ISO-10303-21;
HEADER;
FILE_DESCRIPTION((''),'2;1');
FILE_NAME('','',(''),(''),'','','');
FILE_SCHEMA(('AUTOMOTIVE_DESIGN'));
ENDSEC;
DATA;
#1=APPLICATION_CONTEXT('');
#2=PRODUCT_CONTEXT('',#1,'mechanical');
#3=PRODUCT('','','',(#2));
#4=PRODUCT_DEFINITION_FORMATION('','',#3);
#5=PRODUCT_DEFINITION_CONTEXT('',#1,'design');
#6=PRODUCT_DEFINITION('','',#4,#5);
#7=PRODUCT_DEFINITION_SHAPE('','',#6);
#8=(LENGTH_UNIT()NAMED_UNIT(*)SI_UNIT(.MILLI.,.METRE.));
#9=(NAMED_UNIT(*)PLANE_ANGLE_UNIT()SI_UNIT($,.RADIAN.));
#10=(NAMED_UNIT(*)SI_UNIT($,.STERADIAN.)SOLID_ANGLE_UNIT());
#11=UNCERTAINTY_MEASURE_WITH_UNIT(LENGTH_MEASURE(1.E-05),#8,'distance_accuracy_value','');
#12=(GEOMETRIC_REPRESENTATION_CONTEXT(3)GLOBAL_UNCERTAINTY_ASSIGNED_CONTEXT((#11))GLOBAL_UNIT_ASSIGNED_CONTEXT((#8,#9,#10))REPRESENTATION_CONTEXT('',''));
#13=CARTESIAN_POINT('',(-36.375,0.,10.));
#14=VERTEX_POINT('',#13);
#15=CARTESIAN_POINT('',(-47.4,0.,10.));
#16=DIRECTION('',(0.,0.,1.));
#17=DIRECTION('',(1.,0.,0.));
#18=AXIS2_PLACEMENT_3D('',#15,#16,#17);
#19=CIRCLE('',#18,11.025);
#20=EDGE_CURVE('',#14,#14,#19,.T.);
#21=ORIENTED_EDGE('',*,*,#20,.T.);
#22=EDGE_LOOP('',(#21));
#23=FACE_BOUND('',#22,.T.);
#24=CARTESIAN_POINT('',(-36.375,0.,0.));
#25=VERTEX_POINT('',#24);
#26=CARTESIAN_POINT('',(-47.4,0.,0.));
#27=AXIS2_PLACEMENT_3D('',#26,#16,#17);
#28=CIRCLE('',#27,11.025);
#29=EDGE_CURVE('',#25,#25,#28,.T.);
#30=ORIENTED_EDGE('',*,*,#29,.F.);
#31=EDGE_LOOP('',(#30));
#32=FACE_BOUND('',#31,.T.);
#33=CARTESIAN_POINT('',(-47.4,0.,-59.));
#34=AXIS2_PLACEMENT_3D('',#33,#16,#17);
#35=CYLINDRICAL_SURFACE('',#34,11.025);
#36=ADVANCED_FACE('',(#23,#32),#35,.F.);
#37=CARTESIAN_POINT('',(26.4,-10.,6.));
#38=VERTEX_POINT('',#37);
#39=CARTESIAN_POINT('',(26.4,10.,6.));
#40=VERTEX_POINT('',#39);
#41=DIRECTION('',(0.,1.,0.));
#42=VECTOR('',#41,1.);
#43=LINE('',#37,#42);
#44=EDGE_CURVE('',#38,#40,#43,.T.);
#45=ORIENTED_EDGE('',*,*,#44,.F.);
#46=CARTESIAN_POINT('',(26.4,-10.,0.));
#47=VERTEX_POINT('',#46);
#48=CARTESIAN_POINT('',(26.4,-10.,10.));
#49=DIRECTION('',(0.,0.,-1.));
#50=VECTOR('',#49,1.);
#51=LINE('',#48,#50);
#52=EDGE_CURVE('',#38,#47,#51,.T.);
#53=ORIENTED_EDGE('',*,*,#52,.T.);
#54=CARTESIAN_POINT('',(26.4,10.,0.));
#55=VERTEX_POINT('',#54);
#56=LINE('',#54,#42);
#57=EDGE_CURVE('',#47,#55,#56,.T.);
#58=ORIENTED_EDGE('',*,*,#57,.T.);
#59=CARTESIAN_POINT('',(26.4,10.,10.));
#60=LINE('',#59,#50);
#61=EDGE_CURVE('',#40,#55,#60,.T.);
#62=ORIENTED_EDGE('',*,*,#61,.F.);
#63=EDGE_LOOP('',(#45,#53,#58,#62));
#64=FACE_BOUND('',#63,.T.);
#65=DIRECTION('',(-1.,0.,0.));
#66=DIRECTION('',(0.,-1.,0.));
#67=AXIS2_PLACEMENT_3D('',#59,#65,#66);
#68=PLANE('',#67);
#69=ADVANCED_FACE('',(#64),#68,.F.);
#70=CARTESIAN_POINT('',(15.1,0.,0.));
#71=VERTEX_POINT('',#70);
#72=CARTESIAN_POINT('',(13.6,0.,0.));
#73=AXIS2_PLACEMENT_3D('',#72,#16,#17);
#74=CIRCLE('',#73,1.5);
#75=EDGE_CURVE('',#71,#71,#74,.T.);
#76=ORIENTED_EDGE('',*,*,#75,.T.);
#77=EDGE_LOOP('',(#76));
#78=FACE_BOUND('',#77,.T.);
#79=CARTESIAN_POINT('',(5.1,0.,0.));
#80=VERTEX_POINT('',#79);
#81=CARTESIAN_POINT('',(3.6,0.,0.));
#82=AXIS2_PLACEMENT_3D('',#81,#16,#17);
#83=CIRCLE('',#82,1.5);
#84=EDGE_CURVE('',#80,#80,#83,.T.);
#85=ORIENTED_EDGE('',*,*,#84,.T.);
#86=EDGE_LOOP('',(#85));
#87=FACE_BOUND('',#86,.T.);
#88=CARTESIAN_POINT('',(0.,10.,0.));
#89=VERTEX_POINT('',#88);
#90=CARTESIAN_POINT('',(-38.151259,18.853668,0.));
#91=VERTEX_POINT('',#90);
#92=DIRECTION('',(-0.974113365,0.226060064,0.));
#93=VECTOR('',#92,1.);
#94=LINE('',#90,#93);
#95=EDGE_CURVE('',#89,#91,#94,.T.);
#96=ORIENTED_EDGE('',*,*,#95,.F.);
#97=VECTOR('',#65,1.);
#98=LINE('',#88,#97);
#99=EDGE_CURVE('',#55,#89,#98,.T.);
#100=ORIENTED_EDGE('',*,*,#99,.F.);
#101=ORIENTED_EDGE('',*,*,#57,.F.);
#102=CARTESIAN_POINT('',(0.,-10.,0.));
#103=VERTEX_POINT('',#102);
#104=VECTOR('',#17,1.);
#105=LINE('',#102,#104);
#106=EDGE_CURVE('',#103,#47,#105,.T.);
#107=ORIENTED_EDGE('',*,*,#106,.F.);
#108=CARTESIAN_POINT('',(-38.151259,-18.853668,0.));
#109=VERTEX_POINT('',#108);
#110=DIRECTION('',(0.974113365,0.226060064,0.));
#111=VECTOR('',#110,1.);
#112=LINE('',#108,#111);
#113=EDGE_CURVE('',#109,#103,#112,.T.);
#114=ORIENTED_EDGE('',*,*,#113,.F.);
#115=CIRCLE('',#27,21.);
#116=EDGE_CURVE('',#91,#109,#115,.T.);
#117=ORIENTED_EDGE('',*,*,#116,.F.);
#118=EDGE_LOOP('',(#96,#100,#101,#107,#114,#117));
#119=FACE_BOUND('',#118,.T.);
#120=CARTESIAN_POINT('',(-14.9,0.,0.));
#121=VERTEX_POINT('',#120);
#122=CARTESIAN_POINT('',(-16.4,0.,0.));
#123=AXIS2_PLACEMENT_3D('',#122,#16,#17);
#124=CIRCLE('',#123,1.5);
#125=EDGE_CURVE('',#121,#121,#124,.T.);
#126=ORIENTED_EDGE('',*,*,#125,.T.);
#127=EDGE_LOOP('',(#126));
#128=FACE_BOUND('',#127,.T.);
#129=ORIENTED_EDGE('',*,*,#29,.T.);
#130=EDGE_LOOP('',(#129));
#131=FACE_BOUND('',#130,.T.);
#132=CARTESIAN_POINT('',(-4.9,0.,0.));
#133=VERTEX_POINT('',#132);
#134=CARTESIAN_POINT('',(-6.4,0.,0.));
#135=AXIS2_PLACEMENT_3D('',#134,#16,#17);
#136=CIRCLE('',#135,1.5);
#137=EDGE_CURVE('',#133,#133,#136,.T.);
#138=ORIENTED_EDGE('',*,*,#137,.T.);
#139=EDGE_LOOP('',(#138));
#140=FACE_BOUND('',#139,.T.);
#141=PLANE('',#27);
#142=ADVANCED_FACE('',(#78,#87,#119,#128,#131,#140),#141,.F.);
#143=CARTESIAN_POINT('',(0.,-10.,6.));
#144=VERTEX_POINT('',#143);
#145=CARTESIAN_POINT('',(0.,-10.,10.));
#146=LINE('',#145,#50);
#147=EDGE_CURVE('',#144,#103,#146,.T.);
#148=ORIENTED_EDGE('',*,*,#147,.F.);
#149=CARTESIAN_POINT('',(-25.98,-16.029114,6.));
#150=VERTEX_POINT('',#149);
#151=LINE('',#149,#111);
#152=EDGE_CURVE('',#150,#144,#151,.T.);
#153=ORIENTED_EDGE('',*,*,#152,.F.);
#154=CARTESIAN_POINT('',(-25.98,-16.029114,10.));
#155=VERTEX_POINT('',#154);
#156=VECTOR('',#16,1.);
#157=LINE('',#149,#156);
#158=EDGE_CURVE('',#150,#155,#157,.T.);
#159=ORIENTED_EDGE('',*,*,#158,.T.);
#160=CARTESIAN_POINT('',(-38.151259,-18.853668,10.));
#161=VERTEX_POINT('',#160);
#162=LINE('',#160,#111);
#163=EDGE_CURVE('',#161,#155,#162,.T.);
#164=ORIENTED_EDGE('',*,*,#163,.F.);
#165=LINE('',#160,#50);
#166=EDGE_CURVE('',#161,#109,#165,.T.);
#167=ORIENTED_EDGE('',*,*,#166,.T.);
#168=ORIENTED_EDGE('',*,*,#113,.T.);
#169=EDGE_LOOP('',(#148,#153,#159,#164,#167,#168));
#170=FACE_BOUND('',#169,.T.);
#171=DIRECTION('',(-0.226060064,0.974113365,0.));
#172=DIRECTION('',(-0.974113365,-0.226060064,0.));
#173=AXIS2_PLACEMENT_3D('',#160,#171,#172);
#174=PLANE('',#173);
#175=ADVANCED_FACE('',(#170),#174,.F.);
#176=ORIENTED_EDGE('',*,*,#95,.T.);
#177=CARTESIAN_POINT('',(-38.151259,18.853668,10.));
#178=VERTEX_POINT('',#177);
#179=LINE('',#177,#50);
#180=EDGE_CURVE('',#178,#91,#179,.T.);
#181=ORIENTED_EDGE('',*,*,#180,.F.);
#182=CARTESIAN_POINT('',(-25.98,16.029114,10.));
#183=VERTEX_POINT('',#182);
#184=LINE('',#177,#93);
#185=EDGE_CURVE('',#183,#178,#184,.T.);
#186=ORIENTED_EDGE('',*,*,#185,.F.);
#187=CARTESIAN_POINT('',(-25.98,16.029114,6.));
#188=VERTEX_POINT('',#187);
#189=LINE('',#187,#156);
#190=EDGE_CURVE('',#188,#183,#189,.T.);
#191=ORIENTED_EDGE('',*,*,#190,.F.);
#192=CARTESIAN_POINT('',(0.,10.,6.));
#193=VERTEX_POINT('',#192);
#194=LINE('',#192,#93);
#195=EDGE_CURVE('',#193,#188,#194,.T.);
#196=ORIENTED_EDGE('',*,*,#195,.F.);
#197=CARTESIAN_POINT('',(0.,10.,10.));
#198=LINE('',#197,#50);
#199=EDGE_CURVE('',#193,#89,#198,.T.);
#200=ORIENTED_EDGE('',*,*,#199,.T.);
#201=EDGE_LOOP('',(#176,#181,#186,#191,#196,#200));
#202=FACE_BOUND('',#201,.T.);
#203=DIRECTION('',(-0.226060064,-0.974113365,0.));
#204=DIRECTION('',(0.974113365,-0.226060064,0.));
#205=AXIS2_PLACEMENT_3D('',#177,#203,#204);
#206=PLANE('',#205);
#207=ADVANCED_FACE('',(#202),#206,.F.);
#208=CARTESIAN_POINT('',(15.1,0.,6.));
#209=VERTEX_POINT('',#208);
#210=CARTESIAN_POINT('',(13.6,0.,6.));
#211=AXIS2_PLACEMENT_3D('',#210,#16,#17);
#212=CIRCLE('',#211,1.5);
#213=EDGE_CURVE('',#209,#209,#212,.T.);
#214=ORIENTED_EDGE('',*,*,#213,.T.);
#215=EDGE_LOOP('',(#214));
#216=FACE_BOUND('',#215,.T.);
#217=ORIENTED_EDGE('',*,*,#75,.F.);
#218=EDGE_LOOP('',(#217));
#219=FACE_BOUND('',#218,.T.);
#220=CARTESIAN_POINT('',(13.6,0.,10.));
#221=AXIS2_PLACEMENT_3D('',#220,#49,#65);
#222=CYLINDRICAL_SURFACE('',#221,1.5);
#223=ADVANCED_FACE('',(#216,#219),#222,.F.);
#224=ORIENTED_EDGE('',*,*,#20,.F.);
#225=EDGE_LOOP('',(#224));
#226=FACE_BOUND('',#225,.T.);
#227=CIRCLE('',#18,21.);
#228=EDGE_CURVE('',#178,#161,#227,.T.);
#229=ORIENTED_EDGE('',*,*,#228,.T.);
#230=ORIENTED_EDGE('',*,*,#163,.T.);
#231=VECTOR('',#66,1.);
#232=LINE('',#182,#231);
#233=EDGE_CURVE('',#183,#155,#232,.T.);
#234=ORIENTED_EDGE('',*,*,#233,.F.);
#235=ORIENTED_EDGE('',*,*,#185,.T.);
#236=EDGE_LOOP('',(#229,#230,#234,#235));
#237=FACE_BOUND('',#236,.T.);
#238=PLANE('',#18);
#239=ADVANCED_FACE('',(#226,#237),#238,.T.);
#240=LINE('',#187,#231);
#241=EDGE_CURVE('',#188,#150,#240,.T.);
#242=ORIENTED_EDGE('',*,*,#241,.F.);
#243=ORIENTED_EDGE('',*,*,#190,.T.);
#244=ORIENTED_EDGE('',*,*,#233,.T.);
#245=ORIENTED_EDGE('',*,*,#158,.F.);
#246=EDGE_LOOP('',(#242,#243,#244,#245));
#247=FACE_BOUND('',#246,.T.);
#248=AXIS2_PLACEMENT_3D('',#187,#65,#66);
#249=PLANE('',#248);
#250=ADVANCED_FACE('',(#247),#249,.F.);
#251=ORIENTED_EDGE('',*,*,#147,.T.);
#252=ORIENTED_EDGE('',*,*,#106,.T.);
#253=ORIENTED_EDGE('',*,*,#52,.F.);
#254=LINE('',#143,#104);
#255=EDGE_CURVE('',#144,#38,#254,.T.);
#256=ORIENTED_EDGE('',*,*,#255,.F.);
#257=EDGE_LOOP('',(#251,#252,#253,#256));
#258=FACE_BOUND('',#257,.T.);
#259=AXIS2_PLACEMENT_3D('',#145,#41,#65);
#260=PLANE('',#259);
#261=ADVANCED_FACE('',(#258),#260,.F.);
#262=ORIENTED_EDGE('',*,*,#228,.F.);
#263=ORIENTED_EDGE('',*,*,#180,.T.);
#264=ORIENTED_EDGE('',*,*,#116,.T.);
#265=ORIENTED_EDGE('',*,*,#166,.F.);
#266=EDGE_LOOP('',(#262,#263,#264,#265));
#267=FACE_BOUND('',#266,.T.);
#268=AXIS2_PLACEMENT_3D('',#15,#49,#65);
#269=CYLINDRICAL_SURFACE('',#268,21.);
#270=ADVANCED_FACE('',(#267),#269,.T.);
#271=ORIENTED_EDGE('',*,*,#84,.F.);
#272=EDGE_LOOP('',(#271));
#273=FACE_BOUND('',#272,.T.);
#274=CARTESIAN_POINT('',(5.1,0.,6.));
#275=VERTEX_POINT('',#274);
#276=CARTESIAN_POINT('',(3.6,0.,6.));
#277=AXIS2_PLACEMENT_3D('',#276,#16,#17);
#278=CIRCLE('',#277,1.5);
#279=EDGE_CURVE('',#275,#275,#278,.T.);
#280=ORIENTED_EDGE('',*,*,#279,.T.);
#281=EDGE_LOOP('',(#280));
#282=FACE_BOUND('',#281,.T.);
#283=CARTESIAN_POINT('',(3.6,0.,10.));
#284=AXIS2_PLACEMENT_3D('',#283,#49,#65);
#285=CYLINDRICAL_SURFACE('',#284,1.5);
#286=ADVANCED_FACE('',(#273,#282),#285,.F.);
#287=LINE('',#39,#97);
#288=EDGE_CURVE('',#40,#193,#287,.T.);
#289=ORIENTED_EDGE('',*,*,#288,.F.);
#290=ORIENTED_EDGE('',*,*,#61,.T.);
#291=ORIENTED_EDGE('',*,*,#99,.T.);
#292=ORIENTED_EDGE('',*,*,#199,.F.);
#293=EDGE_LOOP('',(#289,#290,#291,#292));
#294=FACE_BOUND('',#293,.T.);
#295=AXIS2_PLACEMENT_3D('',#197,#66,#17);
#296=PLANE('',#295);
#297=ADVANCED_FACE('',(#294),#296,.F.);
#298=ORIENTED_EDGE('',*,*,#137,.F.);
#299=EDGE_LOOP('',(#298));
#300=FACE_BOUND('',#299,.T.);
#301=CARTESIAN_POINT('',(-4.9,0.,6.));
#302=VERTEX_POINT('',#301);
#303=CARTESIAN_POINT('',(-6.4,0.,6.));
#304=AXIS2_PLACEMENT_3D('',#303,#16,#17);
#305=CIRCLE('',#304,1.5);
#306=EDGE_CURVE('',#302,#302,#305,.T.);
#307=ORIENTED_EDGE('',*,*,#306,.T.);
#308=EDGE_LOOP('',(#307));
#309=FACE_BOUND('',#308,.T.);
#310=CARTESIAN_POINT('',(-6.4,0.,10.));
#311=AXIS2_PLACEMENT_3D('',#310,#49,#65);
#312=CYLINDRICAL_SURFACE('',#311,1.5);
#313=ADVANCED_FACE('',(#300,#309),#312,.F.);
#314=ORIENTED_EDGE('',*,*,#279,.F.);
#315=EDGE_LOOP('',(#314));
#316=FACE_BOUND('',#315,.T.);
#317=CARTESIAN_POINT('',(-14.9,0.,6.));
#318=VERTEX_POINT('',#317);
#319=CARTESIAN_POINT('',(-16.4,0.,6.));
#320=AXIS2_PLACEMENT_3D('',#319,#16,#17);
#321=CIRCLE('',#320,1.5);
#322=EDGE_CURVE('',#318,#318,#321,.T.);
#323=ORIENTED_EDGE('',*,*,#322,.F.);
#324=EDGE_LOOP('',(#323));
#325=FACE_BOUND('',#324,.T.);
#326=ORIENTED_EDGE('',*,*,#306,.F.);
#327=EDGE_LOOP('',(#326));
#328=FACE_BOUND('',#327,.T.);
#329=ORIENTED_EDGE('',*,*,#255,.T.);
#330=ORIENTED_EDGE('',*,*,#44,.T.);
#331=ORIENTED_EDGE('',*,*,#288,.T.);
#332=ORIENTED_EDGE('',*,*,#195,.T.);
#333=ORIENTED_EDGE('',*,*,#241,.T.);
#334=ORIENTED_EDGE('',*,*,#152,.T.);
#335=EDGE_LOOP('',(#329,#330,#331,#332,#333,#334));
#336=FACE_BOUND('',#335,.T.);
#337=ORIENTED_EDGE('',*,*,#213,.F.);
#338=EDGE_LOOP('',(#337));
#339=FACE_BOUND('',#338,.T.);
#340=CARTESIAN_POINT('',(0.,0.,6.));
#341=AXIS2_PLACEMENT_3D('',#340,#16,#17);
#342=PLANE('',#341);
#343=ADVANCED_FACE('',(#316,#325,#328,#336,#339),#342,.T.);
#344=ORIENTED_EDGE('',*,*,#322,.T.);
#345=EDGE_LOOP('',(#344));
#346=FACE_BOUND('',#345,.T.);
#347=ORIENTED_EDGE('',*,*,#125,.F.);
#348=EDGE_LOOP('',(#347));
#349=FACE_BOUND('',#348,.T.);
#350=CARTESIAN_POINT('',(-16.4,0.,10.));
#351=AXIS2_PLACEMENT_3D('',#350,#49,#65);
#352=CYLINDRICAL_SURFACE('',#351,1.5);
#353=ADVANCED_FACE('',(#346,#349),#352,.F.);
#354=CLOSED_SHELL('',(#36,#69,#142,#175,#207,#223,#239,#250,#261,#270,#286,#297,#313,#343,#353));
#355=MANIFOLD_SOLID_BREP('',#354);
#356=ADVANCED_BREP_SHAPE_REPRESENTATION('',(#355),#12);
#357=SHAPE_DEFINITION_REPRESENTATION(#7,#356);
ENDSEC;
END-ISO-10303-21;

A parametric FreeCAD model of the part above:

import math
import FreeCAD as App
import Part
import Sketcher

V = App.Vector
Q = App.Units.Quantity


def add_polygon(sketch, points):
    """Adds a closed chain of lines whose ends are joined by coincident constraints."""
    first, n = sketch.GeometryCount, len(points)
    for a, b in zip(points, points[1:] + points[:1]):
        sketch.addGeometry(Part.LineSegment(App.Vector(*a, 0), App.Vector(*b, 0)), False)
    for i in range(n):
        sketch.addConstraint(Sketcher.Constraint("Coincident", first + i, 2, first + (i + 1) % n, 1))

doc = App.newDocument("Part")
params = doc.addObject("Spreadsheet::Sheet", "Params")
for row, (alias, value) in enumerate([
    ("sketch1_diameter", "3 mm"),
    ("sketch1_diameter2", "15 mm"),
    ("sketch1_radius", "21 mm"),
    ("sketch1_height", "20 mm"),
    ("sketch1_width", "26.4 mm"),
    ("pad1_length", "10 mm"),
    ("sketch2_height", "20 mm"),
    ("sketch2_width", "26.4 mm"),
    ("pocket1_length", "4 mm"),
    ("sketch3_diameter", "22.05 mm"),
    ("pocket2_length", "69 mm"),
], start=1):
    params.set(f"A{row}", alias)
    params.set(f"B{row}", "=" + value)
    params.setAlias(f"B{row}", alias)

body = doc.addObject("PartDesign::Body", "Body")

# Sketch on XY plane
sketch1 = body.newObject("Sketcher::SketchObject", "Sketch")
sketch1.AttachmentSupport = (doc.getObject("XY_Plane"), [""])
sketch1.MapMode = "FlatFace"
sketch1.addGeometry([
    Part.LineSegment(V(0, 10, 0), V(-38.2, 18.9, 0)),  # 0
    Part.ArcOfCircle(Part.Circle(V(-47.4, 0, 0), V(0, 0, 1), 21), math.radians(64), math.radians(296)),  # 1
    Part.LineSegment(V(-38.2, -18.9, 0), V(0, -10, 0)),  # 2
    Part.LineSegment(V(0, -10, 0), V(26.4, -10, 0)),  # 3
    Part.LineSegment(V(26.4, -10, 0), V(26.4, 10, 0)),  # 4
    Part.LineSegment(V(26.4, 10, 0), V(0, 10, 0)),  # 5
    Part.Circle(V(13.6, 0, 0), V(0, 0, 1), 1.5),  # 6
    Part.Circle(V(3.6, 0, 0), V(0, 0, 1), 1.5),  # 7
    Part.Circle(V(-6.4, 0, 0), V(0, 0, 1), 1.5),  # 8
    Part.Circle(V(-16.4, 0, 0), V(0, 0, 1), 1.5),  # 9
    Part.Circle(V(-47.4, 0, 0), V(0, 0, 1), 7.5),  # 10
], False)
sketch1.addConstraint([
    Sketcher.Constraint("Coincident", 0, 2, 1, 1),
    Sketcher.Constraint("Coincident", 1, 2, 2, 1),
    Sketcher.Constraint("Coincident", 2, 2, 3, 1),
    Sketcher.Constraint("Coincident", 3, 2, 4, 1),
    Sketcher.Constraint("Coincident", 4, 2, 5, 1),
    Sketcher.Constraint("Coincident", 5, 2, 0, 1),
    Sketcher.Constraint("Horizontal", 3),
    Sketcher.Constraint("Vertical", 4),
    Sketcher.Constraint("Horizontal", 5),
    Sketcher.Constraint("Coincident", 10, 3, 1, 3),
    Sketcher.Constraint("Equal", 6, 7),
    Sketcher.Constraint("Equal", 7, 8),
    Sketcher.Constraint("Equal", 8, 9),
    Sketcher.Constraint("Symmetric", 2, 2, 5, 2, -1, 1),
    Sketcher.Constraint("Symmetric", 0, 2, 1, 2, -1),
    Sketcher.Constraint("PointOnObject", 6, 3, -1),
    Sketcher.Constraint("PointOnObject", 7, 3, -1),
    Sketcher.Constraint("PointOnObject", 8, 3, -1),
    Sketcher.Constraint("PointOnObject", 9, 3, -1),
    Sketcher.Constraint("PointOnObject", 2, 2, -2),
    Sketcher.Constraint("Diameter", 6, Q("3 mm")),
    Sketcher.Constraint("Diameter", 10, Q("15 mm")),
    Sketcher.Constraint("Radius", 1, Q("21 mm")),
    Sketcher.Constraint("DistanceY", 4, 1, 4, 2, Q("20 mm")),
    Sketcher.Constraint("DistanceX", 3, 1, 3, 2, Q("26.4 mm")),
    Sketcher.Constraint("DistanceX", 1, 3, 6, 3, Q("61 mm")),
    Sketcher.Constraint("DistanceX", 7, 3, 6, 3, Q("10 mm")),
    Sketcher.Constraint("DistanceX", 8, 3, 7, 3, Q("10 mm")),
    Sketcher.Constraint("DistanceX", 9, 3, 8, 3, Q("10 mm")),
    Sketcher.Constraint("DistanceX", 1, 3, -1, 1, Q("47.4 mm")),
    Sketcher.Constraint("Distance", 0, Q("39.165112 mm")),
])
sketch1.setExpression("Constraints[20]", "Params.sketch1_diameter")
sketch1.setExpression("Constraints[21]", "Params.sketch1_diameter2")
sketch1.setExpression("Constraints[22]", "Params.sketch1_radius")
sketch1.setExpression("Constraints[23]", "Params.sketch1_height")
sketch1.setExpression("Constraints[24]", "Params.sketch1_width")
pad1 = body.newObject("PartDesign::Pad", "Pad")
pad1.Profile = sketch1
pad1.setExpression("Length", "Params.pad1_length")

# Sketch on XY plane
sketch2 = body.newObject("Sketcher::SketchObject", "Sketch001")
sketch2.AttachmentSupport = (doc.getObject("XY_Plane"), [""])
sketch2.MapMode = "FlatFace"
sketch2.AttachmentOffset = App.Placement(V(0, 0, 10), App.Rotation())
add_polygon(sketch2, [(-26, -16), (0, -10), (26, -10), (26, 10), (0, 10), (-26, 16)])  # lines 0-5
sketch2.addConstraint([
    Sketcher.Constraint("Horizontal", 1),
    Sketcher.Constraint("Vertical", 2),
    Sketcher.Constraint("Horizontal", 3),
    Sketcher.Constraint("Vertical", 5),
    Sketcher.Constraint("Symmetric", 0, 2, 3, 2, -1, 1),
    Sketcher.Constraint("PointOnObject", 0, 2, -2),
    Sketcher.Constraint("Equal", 0, 4),
    Sketcher.Constraint("DistanceY", 2, 1, 2, 2, Q("20 mm")),
    Sketcher.Constraint("DistanceX", 1, 1, 1, 2, Q("26.4 mm")),
    Sketcher.Constraint("DistanceX", 4, 2, -1, 1, Q("25.98 mm")),
    Sketcher.Constraint("DistanceY", 5, 2, 5, 1, Q("32.058228 mm")),
])
sketch2.setExpression("Constraints[13]", "Params.sketch2_height")
sketch2.setExpression("Constraints[14]", "Params.sketch2_width")
pocket1 = body.newObject("PartDesign::Pocket", "Pocket")
pocket1.Profile = sketch2
pocket1.setExpression("Length", "Params.pocket1_length")

# Sketch on XY plane
sketch3 = body.newObject("Sketcher::SketchObject", "Sketch002")
sketch3.AttachmentSupport = (doc.getObject("XY_Plane"), [""])
sketch3.MapMode = "FlatFace"
sketch3.AttachmentOffset = App.Placement(V(0, 0, 10), App.Rotation())
sketch3.addGeometry(Part.Circle(V(-47, 0, 0), V(0, 0, 1), 11), False)
sketch3.addConstraint([
    Sketcher.Constraint("PointOnObject", 0, 3, -1),
    Sketcher.Constraint("Diameter", 0, Q("22.05 mm")),
    Sketcher.Constraint("DistanceX", 0, 3, -1, 1, Q("47.4 mm")),
])
sketch3.setExpression("Constraints[1]", "Params.sketch3_diameter")
pocket2 = body.newObject("PartDesign::Pocket", "Pocket001")
pocket2.Profile = sketch3
pocket2.setExpression("Length", "Params.pocket2_length")

doc.recompute()
